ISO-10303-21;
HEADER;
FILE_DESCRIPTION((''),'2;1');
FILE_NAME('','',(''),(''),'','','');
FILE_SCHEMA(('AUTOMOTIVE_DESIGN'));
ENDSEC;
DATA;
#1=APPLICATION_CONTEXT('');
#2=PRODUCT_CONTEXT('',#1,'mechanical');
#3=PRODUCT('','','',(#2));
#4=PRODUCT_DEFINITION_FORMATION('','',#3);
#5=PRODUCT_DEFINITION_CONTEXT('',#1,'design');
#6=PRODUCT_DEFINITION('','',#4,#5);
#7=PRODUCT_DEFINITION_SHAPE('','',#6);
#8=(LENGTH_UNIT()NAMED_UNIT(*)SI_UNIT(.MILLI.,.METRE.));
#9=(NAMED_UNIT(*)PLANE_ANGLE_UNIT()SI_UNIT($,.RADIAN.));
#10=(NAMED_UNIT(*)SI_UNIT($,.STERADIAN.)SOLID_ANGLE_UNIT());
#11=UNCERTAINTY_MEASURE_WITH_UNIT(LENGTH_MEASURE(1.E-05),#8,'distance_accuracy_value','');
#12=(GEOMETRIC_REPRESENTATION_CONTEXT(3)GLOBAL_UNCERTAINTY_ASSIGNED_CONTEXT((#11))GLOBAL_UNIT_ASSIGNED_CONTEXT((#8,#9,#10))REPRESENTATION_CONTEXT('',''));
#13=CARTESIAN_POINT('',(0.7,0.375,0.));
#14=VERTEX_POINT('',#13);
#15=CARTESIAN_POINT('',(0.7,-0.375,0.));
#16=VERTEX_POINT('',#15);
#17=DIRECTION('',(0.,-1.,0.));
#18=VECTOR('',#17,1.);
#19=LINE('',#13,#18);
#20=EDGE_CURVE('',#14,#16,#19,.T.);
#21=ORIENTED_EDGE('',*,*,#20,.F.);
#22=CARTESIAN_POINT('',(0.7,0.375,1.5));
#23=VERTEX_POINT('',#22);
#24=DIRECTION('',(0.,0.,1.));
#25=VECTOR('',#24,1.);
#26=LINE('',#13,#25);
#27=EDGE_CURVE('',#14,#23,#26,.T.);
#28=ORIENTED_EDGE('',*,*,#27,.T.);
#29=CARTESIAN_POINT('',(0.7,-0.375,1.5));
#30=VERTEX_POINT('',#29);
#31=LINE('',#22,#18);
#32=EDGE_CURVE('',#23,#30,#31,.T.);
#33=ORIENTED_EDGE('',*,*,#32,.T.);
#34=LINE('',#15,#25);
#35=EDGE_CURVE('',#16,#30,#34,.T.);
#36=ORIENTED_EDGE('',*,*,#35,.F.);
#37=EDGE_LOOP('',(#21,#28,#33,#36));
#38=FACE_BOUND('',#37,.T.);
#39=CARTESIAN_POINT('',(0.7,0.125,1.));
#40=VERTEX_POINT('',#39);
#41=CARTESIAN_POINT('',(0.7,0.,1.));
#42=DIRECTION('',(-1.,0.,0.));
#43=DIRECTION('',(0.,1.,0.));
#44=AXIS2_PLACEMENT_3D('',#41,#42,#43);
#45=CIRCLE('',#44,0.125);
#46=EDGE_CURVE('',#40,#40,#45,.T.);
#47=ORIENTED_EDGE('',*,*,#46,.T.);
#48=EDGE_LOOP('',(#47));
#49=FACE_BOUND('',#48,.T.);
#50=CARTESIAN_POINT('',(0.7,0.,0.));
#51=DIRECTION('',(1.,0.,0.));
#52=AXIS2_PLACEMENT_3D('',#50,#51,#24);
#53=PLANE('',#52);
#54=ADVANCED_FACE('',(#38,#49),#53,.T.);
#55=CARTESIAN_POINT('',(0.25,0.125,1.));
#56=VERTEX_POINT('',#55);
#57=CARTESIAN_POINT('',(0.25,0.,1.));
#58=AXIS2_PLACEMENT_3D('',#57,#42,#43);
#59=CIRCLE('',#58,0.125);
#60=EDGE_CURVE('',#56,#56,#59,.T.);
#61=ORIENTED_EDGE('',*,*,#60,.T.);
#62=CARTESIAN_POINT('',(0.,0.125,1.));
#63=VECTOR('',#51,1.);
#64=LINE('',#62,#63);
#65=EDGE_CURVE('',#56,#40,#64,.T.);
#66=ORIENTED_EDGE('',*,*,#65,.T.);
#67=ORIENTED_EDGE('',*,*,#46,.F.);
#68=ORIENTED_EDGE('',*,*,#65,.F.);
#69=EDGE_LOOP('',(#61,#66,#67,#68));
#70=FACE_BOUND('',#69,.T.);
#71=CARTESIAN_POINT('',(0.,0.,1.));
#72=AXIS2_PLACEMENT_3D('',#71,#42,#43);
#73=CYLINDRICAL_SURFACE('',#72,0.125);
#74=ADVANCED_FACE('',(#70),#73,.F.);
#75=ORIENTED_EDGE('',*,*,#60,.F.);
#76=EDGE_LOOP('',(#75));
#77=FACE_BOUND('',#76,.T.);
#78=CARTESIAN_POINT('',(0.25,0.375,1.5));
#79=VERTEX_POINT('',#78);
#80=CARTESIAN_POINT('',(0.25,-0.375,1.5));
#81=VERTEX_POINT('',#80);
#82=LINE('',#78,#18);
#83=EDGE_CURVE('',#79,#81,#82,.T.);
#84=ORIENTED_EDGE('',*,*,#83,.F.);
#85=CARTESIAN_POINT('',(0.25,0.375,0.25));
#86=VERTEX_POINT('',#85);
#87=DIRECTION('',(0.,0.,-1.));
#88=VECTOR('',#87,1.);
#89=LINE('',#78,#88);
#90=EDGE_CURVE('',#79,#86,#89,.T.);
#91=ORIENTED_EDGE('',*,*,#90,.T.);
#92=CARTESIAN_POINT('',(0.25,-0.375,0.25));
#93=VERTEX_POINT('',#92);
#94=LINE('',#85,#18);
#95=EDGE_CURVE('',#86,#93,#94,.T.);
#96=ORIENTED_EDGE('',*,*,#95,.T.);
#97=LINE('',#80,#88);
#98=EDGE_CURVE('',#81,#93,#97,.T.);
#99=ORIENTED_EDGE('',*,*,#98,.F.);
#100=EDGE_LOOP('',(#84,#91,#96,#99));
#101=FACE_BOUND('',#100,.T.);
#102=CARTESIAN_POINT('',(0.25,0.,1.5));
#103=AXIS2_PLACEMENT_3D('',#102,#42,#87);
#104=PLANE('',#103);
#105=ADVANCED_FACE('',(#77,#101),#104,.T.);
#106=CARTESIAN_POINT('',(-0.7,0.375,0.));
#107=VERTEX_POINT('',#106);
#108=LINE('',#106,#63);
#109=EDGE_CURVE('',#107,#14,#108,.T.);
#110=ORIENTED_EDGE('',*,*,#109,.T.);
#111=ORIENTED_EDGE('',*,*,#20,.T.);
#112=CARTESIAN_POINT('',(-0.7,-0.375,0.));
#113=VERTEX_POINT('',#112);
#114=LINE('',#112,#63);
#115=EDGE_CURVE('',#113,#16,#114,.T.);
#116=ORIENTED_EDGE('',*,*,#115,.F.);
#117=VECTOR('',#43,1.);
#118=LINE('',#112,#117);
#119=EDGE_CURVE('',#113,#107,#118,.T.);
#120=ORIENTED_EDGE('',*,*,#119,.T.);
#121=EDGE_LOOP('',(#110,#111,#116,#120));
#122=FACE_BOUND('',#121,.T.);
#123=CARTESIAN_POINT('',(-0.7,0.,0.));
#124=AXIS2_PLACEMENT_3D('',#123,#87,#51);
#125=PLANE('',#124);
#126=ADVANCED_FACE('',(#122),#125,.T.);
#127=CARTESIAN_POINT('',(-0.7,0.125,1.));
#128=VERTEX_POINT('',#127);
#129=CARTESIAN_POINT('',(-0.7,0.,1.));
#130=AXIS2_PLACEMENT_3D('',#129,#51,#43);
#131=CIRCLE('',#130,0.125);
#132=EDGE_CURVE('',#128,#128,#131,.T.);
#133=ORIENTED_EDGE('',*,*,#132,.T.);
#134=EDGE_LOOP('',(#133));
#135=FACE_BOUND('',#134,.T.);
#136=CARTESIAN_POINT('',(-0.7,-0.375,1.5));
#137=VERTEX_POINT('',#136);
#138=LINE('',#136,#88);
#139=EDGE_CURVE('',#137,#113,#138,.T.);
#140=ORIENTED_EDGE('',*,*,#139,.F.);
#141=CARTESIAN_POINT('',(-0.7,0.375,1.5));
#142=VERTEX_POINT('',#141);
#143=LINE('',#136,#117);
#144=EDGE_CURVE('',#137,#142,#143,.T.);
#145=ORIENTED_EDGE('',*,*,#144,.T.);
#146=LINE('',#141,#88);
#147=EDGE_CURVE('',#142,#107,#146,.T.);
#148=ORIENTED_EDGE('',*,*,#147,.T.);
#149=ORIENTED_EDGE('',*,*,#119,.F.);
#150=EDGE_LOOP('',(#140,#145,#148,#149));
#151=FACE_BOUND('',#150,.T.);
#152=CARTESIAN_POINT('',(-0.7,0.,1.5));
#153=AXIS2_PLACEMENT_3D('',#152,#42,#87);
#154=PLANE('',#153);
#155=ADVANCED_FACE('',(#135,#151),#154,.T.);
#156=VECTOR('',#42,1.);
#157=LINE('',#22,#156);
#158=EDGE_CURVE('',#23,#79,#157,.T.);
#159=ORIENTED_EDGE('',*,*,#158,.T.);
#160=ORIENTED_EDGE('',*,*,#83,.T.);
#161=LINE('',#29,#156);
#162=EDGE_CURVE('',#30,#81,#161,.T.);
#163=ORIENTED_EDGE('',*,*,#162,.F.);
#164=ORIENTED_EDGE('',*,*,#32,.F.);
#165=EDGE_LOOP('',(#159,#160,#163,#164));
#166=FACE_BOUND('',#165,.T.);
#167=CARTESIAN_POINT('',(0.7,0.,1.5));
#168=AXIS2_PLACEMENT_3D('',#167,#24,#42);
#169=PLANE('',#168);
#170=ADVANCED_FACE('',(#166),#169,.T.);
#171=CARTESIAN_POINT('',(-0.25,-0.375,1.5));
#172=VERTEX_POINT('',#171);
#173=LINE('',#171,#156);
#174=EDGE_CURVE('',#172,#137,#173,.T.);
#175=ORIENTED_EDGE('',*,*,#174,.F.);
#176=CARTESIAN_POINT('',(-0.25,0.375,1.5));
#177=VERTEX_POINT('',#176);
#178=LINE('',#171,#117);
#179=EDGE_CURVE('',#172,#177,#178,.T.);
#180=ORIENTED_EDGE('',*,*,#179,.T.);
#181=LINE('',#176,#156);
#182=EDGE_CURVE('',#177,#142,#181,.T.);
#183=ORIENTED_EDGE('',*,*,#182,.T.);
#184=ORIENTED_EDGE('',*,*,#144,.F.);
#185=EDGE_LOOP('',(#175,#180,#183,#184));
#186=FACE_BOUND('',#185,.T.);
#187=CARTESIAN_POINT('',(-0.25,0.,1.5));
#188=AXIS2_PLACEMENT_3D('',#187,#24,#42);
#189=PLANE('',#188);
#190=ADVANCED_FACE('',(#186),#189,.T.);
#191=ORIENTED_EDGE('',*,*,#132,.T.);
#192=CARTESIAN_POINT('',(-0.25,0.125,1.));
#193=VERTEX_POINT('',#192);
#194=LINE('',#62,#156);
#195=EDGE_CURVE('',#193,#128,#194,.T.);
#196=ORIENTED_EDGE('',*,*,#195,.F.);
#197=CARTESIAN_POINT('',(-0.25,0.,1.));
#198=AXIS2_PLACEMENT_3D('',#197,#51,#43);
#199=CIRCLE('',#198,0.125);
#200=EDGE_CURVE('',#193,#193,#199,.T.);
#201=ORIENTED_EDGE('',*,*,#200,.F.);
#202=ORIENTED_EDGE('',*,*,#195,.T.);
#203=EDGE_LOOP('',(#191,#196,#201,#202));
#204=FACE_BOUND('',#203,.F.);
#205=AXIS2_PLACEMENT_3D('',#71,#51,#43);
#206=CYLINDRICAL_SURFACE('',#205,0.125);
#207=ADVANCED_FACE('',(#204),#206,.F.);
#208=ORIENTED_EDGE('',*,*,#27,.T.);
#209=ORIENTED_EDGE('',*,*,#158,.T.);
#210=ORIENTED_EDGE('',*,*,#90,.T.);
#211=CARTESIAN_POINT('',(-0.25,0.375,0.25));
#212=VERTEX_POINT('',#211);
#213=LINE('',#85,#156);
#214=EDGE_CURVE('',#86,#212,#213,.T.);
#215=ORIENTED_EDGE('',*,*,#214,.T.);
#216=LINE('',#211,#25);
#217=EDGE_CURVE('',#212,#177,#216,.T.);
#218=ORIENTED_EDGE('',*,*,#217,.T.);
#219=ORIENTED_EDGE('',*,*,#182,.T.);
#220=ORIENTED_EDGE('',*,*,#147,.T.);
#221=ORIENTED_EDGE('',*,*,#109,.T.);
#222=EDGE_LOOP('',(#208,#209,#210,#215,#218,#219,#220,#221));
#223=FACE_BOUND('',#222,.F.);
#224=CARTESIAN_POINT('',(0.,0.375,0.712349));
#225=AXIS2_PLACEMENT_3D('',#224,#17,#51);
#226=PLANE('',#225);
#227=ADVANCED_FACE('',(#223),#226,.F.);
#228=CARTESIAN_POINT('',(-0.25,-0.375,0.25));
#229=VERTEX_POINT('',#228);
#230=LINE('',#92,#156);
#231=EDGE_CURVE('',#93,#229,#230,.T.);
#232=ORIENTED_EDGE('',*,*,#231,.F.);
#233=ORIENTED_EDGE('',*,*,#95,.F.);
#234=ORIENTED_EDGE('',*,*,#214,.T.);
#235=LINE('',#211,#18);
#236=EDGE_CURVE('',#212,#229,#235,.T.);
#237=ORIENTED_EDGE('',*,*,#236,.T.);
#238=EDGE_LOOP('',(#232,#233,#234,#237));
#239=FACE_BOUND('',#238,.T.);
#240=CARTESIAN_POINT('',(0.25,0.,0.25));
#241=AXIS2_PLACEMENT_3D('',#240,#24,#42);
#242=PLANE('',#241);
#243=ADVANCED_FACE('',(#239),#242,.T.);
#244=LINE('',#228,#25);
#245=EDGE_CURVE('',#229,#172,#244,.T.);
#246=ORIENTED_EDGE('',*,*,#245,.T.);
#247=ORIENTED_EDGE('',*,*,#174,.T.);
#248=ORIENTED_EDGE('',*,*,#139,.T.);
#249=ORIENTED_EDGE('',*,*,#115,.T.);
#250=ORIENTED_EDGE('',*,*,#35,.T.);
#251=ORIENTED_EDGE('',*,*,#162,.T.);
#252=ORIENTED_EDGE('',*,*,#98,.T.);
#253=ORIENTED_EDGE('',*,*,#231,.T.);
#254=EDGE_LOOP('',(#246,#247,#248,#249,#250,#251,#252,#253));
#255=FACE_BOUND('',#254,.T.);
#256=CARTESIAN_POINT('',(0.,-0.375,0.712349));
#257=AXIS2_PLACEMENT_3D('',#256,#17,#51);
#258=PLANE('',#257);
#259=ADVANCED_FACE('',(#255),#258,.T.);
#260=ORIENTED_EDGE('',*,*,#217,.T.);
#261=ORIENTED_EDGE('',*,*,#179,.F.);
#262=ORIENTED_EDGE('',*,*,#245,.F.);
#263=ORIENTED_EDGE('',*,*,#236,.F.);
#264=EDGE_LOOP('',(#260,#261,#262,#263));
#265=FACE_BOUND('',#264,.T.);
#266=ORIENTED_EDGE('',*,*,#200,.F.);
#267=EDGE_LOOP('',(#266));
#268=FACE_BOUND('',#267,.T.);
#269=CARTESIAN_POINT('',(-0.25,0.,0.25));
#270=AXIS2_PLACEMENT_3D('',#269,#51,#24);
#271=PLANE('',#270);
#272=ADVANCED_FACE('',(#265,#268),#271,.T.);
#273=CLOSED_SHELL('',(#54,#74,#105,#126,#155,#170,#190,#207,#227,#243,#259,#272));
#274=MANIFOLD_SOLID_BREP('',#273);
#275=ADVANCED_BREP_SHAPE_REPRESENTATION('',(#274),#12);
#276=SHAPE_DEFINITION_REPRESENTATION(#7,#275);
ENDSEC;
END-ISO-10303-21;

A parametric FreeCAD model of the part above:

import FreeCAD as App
import Part
import Sketcher
from FreeCAD import Vector


def add_polygon(sketch, points):
    """Adds a closed chain of lines whose ends are joined by coincident constraints."""
    first, n = sketch.GeometryCount, len(points)
    for a, b in zip(points, points[1:] + points[:1]):
        sketch.addGeometry(Part.LineSegment(App.Vector(*a, 0), App.Vector(*b, 0)), False)
    for i in range(n):
        sketch.addConstraint(Sketcher.Constraint("Coincident", first + i, 2, first + (i + 1) % n, 1))

doc = App.newDocument("Part")
body = doc.addObject("PartDesign::Body", "Body")

# Sketch on XZ plane
sketch1 = body.newObject("Sketcher::SketchObject", "Sketch")
sketch1.AttachmentSupport = (doc.getObject("XZ_Plane"), [""])
sketch1.MapMode = "FlatFace"
add_polygon(sketch1, [(-0.7, 0), (0.7, 0), (0.7, 1.5), (0.25, 1.5), (0.25, 0.25), (-0.25, 0.25), (-0.25, 1.5), (-0.7, 1.5)])  # lines 0-7
sketch1.addConstraint(Sketcher.Constraint("Horizontal", 0))
sketch1.addConstraint(Sketcher.Constraint("Vertical", 1))
sketch1.addConstraint(Sketcher.Constraint("Horizontal", 2))
sketch1.addConstraint(Sketcher.Constraint("Vertical", 3))
sketch1.addConstraint(Sketcher.Constraint("Horizontal", 4))
sketch1.addConstraint(Sketcher.Constraint("Vertical", 5))
sketch1.addConstraint(Sketcher.Constraint("Horizontal", 6))
sketch1.addConstraint(Sketcher.Constraint("Vertical", 7))
sketch1.addConstraint(Sketcher.Constraint("Symmetric", 0, 2, 7, 2, -1, 1))
sketch1.addConstraint(Sketcher.Constraint("Symmetric", 2, 2, 5, 2, -2))
sketch1.addConstraint(Sketcher.Constraint("DistanceX", 0, 1, 0, 2, 1.4))
sketch1.addConstraint(Sketcher.Constraint("DistanceX", 4, 2, 4, 1, 0.5))
sketch1.addConstraint(Sketcher.Constraint("DistanceY", 1, 1, 1, 2, 1.5))
sketch1.addConstraint(Sketcher.Constraint("DistanceY", 3, 2, 3, 1, 1.25))
pad1 = body.newObject("PartDesign::Pad", "Pad")
pad1.Profile = sketch1
pad1.Type = "TwoLengths"
pad1.Length = 0.375
pad1.Length2 = 0.375

# Sketch on YZ plane
sketch2 = body.newObject("Sketcher::SketchObject", "Sketch001")
sketch2.AttachmentSupport = (doc.getObject("YZ_Plane"), [""])
sketch2.MapMode = "FlatFace"
sketch2.addGeometry(Part.Circle(Vector(0, 1, 0), Vector(0, 0, 1), 0.12), False)
sketch2.addConstraint(Sketcher.Constraint("PointOnObject", 0, 3, -2))
sketch2.addConstraint(Sketcher.Constraint("Diameter", 0, 0.25))
sketch2.addConstraint(Sketcher.Constraint("DistanceY", -1, 1, 0, 3, 1.0))
pocket1 = body.newObject("PartDesign::Pocket", "Pocket")
pocket1.Profile = sketch2
pocket1.Type = "ThroughAll"
pocket1.Midplane = True

doc.recompute()
